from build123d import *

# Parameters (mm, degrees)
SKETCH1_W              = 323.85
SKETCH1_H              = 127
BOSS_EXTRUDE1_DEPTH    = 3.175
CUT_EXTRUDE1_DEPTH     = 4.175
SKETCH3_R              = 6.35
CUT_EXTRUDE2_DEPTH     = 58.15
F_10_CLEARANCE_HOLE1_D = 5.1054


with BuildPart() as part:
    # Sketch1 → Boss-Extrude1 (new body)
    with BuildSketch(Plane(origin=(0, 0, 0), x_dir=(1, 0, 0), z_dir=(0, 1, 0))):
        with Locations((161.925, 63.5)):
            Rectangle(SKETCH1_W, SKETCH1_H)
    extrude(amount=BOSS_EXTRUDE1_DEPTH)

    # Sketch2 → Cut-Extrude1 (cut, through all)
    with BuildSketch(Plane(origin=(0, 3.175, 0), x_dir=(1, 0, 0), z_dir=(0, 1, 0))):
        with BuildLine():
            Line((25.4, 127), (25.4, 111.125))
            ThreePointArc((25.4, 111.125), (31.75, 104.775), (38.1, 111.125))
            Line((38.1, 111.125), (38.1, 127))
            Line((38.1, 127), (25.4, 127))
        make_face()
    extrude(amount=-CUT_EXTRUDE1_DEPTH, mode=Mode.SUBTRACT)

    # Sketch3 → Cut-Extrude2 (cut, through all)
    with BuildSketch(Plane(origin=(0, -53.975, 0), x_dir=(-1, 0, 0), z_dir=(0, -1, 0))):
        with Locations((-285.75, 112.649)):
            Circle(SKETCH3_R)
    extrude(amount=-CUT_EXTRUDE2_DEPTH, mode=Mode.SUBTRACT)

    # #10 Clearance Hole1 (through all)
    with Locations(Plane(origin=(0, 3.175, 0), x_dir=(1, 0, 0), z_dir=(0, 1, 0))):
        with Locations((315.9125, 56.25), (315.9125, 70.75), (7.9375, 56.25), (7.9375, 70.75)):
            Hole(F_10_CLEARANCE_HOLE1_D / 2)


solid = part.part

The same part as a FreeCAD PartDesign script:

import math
import FreeCAD as App
import Part
import Sketcher

V = App.Vector
Q = App.Units.Quantity

doc = App.newDocument("Part")
body = doc.addObject("PartDesign::Body", "Body")

sketch1 = body.newObject("Sketcher::SketchObject", "Sketch")
sketch1.AttachmentSupport = (doc.getObject("XZ_Plane"), [""])
sketch1.MapMode = "FlatFace"
sketch1.addGeometry([
    Part.LineSegment(V(0, -127, 0), V(0, 0, 0)),
    Part.LineSegment(V(0, 0, 0), V(323.85, 0, 0)),
    Part.LineSegment(V(323.85, 0, 0), V(323.85, -127, 0)),
    Part.LineSegment(V(323.85, -127, 0), V(0, -127, 0)),
], False)
sketch1.addConstraint([
    Sketcher.Constraint("Coincident", 0, 2, 1, 1),
    Sketcher.Constraint("Coincident", 1, 2, 2, 1),
    Sketcher.Constraint("Coincident", 2, 2, 3, 1),
    Sketcher.Constraint("Coincident", 3, 2, 0, 1),
    Sketcher.Constraint("Vertical", 0),
    Sketcher.Constraint("Horizontal", 1),
    Sketcher.Constraint("Vertical", 2),
    Sketcher.Constraint("Horizontal", 3),
    Sketcher.Constraint("Coincident", 0, 2, -1, 1),
    Sketcher.Constraint("DistanceY", 0, 1, 0, 2, Q("5 in")),
    Sketcher.Constraint("DistanceX", 1, 1, 1, 2, Q("12.75 in")),
])
pad1 = body.newObject("PartDesign::Pad", "Pad")
pad1.Profile = sketch1
pad1.Length = Q("0.125 in")
pad1.Reversed = True

sketch2 = body.newObject("Sketcher::SketchObject", "Sketch001")
sketch2.AttachmentSupport = (doc.getObject("XZ_Plane"), [""])
sketch2.MapMode = "FlatFace"
sketch2.AttachmentOffset = App.Placement(V(0, 0, -0.125 * 25.4), App.Rotation())
sketch2.addGeometry([
    Part.LineSegment(V(25.4, -127, 0), V(25.4, -111.125, 0)),
    Part.ArcOfCircle(Part.Circle(V(31.75, -111.125, 0), V(0, 0, 1), 6.35), math.radians(0), math.radians(180)),
    Part.LineSegment(V(38.1, -111.125, 0), V(38.1, -127, 0)),
    Part.LineSegment(V(38.1, -127, 0), V(25.4, -127, 0)),
], False)
sketch2.addConstraint([
    Sketcher.Constraint("Tangent", 0, 2, 1, 2),
    Sketcher.Constraint("Tangent", 1, 1, 2, 1),
    Sketcher.Constraint("Coincident", 2, 2, 3, 1),
    Sketcher.Constraint("Coincident", 3, 2, 0, 1),
    Sketcher.Constraint("Vertical", 0),
    Sketcher.Constraint("Vertical", 2),
    Sketcher.Constraint("Horizontal", 3),
    Sketcher.Constraint("Radius", 1, Q("0.25 in")),
    Sketcher.Constraint("DistanceX", -1, 1, 0, 2, Q("1 in")),
    Sketcher.Constraint("DistanceY", 2, 2, -1, 1, Q("5 in")),
    Sketcher.Constraint("DistanceY", 0, 1, 0, 2, Q("0.625 in")),
])
pocket1 = body.newObject("PartDesign::Pocket", "Pocket")
pocket1.Profile = sketch2
pocket1.Type = "ThroughAll"
pocket1.Reversed = True

sketch3 = body.newObject("Sketcher::SketchObject", "Sketch002")
sketch3.AttachmentSupport = (doc.getObject("XZ_Plane"), [""])
sketch3.MapMode = "FlatFace"
sketch3.AttachmentOffset = App.Placement(V(0, 0, 2.125 * 25.4), App.Rotation())
sketch3.addGeometry(Part.Circle(V(285.75, -112.649, 0), V(0, 0, 1), 6.35), False)
sketch3.addConstraint([
    Sketcher.Constraint("Diameter", 0, Q("0.5 in")),
    Sketcher.Constraint("DistanceX", -1, 1, 0, 3, Q("11.25 in")),
    Sketcher.Constraint("DistanceY", 0, 3, -1, 1, Q("4.435 in")),
])
pocket2 = body.newObject("PartDesign::Pocket", "Pocket001")
pocket2.Profile = sketch3
pocket2.Type = "ThroughAll"

sketch4 = body.newObject("Sketcher::SketchObject", "Sketch003")
sketch4.AttachmentSupport = (doc.getObject("XZ_Plane"), [""])
sketch4.MapMode = "FlatFace"
sketch4.AttachmentOffset = App.Placement(V(0, 0, -0.125 * 25.4), App.Rotation())
sketch4.addGeometry([
    Part.Circle(V(315.9125, -56.25, 0), V(0, 0, 1), 2.5527),
    Part.Circle(V(315.9125, -70.75, 0), V(0, 0, 1), 2.5527),
    Part.Circle(V(7.9375, -56.25, 0), V(0, 0, 1), 2.5527),
    Part.Circle(V(7.9375, -70.75, 0), V(0, 0, 1), 2.5527),
], False)
sketch4.addConstraint([
    Sketcher.Constraint("Equal", 0, 1),
    Sketcher.Constraint("Equal", 1, 2),
    Sketcher.Constraint("Equal", 2, 3),
    Sketcher.Constraint("Horizontal", 0, 3, 2, 3),
    Sketcher.Constraint("Horizontal", 1, 3, 3, 3),
    Sketcher.Constraint("Vertical", 0, 3, 1, 3),
    Sketcher.Constraint("Vertical", 2, 3, 3, 3),
    Sketcher.Constraint("Diameter", 0, Q("0.201 in")),
    Sketcher.Constraint("DistanceX", -1, 1, 0, 3, Q("12.4375 in")),
    Sketcher.Constraint("DistanceX", -1, 1, 2, 3, Q("0.3125 in")),
    Sketcher.Constraint("DistanceY", 0, 3, -1, 1, Q("56.25 mm")),
    Sketcher.Constraint("DistanceY", 1, 3, -1, 1, Q("70.75 mm")),
])
doc.recompute()
hole = body.newObject("PartDesign::Hole", "Hole")
hole.Profile = sketch4
hole.ThreadType = "None"
hole.Diameter = Q("0.201 in")
hole.DepthType = "ThroughAll"
hole.Reversed = True

doc.recompute()
